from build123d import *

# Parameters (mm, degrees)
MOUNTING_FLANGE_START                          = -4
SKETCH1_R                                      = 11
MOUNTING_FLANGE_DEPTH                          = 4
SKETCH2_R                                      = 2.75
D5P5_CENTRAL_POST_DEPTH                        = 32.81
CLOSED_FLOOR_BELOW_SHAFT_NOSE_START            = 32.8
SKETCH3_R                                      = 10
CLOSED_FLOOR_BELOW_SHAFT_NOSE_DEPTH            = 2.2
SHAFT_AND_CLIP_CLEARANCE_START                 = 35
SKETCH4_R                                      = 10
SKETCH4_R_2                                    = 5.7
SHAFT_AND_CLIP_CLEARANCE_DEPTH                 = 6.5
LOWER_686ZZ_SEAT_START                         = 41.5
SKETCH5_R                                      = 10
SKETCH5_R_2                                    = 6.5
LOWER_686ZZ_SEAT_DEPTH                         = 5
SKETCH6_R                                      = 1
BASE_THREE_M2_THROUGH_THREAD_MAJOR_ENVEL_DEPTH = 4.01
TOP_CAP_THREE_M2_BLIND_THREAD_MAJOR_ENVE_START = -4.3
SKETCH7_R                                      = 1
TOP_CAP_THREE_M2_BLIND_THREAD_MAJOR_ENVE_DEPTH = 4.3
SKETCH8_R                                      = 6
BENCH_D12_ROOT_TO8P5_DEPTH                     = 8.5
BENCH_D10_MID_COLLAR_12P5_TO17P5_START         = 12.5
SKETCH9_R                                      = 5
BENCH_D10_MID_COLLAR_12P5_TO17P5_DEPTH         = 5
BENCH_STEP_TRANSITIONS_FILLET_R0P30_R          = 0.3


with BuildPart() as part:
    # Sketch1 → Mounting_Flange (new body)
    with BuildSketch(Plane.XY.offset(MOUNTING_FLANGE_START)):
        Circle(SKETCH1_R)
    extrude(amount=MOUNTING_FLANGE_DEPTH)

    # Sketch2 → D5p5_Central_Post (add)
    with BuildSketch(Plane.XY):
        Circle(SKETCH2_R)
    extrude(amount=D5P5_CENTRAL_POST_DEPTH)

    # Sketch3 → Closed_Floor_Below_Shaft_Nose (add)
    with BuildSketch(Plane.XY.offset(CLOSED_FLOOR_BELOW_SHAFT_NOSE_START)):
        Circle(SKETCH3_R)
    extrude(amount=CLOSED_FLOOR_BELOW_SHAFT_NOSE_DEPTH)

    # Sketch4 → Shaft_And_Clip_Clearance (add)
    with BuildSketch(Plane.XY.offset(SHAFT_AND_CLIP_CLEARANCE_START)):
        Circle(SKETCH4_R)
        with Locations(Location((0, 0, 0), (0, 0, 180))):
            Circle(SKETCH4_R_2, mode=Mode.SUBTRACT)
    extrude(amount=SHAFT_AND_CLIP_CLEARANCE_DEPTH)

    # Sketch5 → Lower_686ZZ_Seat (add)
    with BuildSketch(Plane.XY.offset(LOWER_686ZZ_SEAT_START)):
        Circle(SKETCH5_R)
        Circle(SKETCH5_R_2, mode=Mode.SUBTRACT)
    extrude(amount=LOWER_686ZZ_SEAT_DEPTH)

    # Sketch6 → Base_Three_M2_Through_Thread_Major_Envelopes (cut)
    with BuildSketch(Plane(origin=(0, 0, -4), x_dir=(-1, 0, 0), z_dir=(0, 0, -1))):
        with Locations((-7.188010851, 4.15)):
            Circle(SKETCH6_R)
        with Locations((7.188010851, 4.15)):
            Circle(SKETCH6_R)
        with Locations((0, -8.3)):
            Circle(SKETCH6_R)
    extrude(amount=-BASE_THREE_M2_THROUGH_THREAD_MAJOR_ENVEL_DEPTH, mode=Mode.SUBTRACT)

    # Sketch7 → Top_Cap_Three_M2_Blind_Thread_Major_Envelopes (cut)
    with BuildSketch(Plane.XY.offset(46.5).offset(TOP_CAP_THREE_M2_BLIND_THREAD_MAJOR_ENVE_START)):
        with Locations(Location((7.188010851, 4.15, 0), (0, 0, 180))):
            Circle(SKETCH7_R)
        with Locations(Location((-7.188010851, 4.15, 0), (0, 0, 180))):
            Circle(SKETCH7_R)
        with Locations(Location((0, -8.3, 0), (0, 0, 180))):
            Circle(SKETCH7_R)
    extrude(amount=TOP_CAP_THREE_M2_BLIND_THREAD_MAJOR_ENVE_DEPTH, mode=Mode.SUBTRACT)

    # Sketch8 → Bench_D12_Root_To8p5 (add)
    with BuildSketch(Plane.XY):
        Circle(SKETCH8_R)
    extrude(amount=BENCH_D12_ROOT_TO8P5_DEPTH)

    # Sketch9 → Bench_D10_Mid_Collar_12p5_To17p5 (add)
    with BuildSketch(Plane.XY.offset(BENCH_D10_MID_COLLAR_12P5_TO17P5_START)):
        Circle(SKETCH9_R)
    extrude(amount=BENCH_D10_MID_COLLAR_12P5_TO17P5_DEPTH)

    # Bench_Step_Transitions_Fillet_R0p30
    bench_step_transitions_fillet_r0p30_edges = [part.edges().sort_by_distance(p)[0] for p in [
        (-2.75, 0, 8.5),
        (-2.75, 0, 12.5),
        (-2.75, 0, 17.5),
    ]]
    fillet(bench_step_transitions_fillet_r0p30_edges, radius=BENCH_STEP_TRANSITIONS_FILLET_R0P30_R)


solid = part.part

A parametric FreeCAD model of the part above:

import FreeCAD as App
import Part
import Sketcher
from FreeCAD import Vector


def edges_at(feature, points):
    """Names of the edges that pass closest to the given points."""
    edges = feature.Shape.Edges
    near = lambda p: min(range(len(edges)), key=lambda i: edges[i].distToShape(Part.Vertex(*p))[0])
    return sorted({f"Edge{near(p) + 1}" for p in points})

doc = App.newDocument("Part")
body = doc.addObject("PartDesign::Body", "Body")

# Sketch on XY plane
sketch1 = doc.addObject("Sketcher::SketchObject", "Sketch")
body.addObject(sketch1)
sketch1.AttachmentSupport = (doc.XY_Plane, [""])
sketch1.MapMode = "FlatFace"
sketch1.AttachmentOffset = App.Placement(Vector(0, 0, -4), App.Rotation())
sketch1.addGeometry(Part.Circle(Vector(0, 0, 0), Vector(0, 0, 1), 11), False)
sketch1.addConstraint([
    Sketcher.Constraint("Coincident", 0, 3, -1, 1),
    Sketcher.Constraint("Diameter", 0, 22.0),
])
pad1 = doc.addObject("PartDesign::Pad", "Pad")
body.addObject(pad1)
pad1.Profile = sketch1
pad1.Length = 4

# Sketch on XY plane
sketch2 = doc.addObject("Sketcher::SketchObject", "Sketch001")
body.addObject(sketch2)
sketch2.AttachmentSupport = (doc.XY_Plane, [""])
sketch2.MapMode = "FlatFace"
sketch2.addGeometry(Part.Circle(Vector(0, 0, 0), Vector(0, 0, 1), 2.8), False)
sketch2.addConstraint([
    Sketcher.Constraint("Coincident", 0, 3, -1, 1),
    Sketcher.Constraint("Diameter", 0, 5.5),
])
pad2 = doc.addObject("PartDesign::Pad", "Pad001")
body.addObject(pad2)
pad2.Profile = sketch2
pad2.Length = 32.81

# Sketch on XY plane
sketch3 = doc.addObject("Sketcher::SketchObject", "Sketch002")
body.addObject(sketch3)
sketch3.AttachmentSupport = (doc.XY_Plane, [""])
sketch3.MapMode = "FlatFace"
sketch3.AttachmentOffset = App.Placement(Vector(0, 0, 32.8), App.Rotation())
sketch3.addGeometry(Part.Circle(Vector(0, 0, 0), Vector(0, 0, 1), 10), False)
sketch3.addConstraint([
    Sketcher.Constraint("Coincident", 0, 3, -1, 1),
    Sketcher.Constraint("Diameter", 0, 20.0),
])
pad3 = doc.addObject("PartDesign::Pad", "Pad002")
body.addObject(pad3)
pad3.Profile = sketch3
pad3.Length = 2.2

# Sketch on XY plane
sketch4 = doc.addObject("Sketcher::SketchObject", "Sketch003")
body.addObject(sketch4)
sketch4.AttachmentSupport = (doc.XY_Plane, [""])
sketch4.MapMode = "FlatFace"
sketch4.AttachmentOffset = App.Placement(Vector(0, 0, 35), App.Rotation())
sketch4.addGeometry([
    Part.Circle(Vector(0, 0, 0), Vector(0, 0, 1), 10),
    Part.Circle(Vector(0, 0, 0), Vector(0, 0, 1), 6),
], False)
sketch4.addConstraint([
    Sketcher.Constraint("Coincident", 0, 3, -1, 1),
    Sketcher.Constraint("Coincident", 1, 3, -1, 1),
    Sketcher.Constraint("Diameter", 0, 20.0),
    Sketcher.Constraint("Diameter", 1, 11.4),
])
pad4 = doc.addObject("PartDesign::Pad", "Pad003")
body.addObject(pad4)
pad4.Profile = sketch4
pad4.Length = 6.5

# Sketch on XY plane
sketch5 = doc.addObject("Sketcher::SketchObject", "Sketch004")
body.addObject(sketch5)
sketch5.AttachmentSupport = (doc.XY_Plane, [""])
sketch5.MapMode = "FlatFace"
sketch5.AttachmentOffset = App.Placement(Vector(0, 0, 41.5), App.Rotation())
sketch5.addGeometry([
    Part.Circle(Vector(0, 0, 0), Vector(0, 0, 1), 10),
    Part.Circle(Vector(0, 0, 0), Vector(0, 0, 1), 6),
], False)
sketch5.addConstraint([
    Sketcher.Constraint("Coincident", 0, 3, -1, 1),
    Sketcher.Constraint("Coincident", 1, 3, -1, 1),
    Sketcher.Constraint("Diameter", 0, 20.0),
    Sketcher.Constraint("Diameter", 1, 13.0),
])
pad5 = doc.addObject("PartDesign::Pad", "Pad004")
body.addObject(pad5)
pad5.Profile = sketch5
pad5.Length = 5

# Sketch on XY plane
sketch6 = doc.addObject("Sketcher::SketchObject", "Sketch005")
body.addObject(sketch6)
sketch6.AttachmentSupport = (doc.XY_Plane, [""])
sketch6.MapMode = "FlatFace"
sketch6.AttachmentOffset = App.Placement(Vector(0, 0, -4), App.Rotation())
sketch6.addGeometry([
    Part.Circle(Vector(7.2, 4.2, 0), Vector(0, 0, 1), 1),
    Part.Circle(Vector(-7.2, 4.2, 0), Vector(0, 0, 1), 1),
    Part.Circle(Vector(0, -8.3, 0), Vector(0, 0, 1), 1),
], False)
sketch6.addConstraint([
    Sketcher.Constraint("Equal", 0, 1),
    Sketcher.Constraint("Equal", 1, 2),
    Sketcher.Constraint("Symmetric", 0, 3, 1, 3, -2),
    Sketcher.Constraint("PointOnObject", 2, 3, -2),
    Sketcher.Constraint("Diameter", 0, 2.0),
    Sketcher.Constraint("DistanceY", 2, 3, -1, 1, 8.3),
    Sketcher.Constraint("DistanceY", -1, 1, 0, 3, 4.15),
    Sketcher.Constraint("DistanceX", -1, 1, 0, 3, 7.188011),
])
pocket1 = doc.addObject("PartDesign::Pocket", "Pocket")
body.addObject(pocket1)
pocket1.Profile = sketch6
pocket1.Length = 4.01
pocket1.Reversed = True

# Sketch on XY plane
sketch7 = doc.addObject("Sketcher::SketchObject", "Sketch006")
body.addObject(sketch7)
sketch7.AttachmentSupport = (doc.XY_Plane, [""])
sketch7.MapMode = "FlatFace"
sketch7.AttachmentOffset = App.Placement(Vector(0, 0, 42.2), App.Rotation())
sketch7.addGeometry([
    Part.Circle(Vector(7.2, 4.2, 0), Vector(0, 0, 1), 1),
    Part.Circle(Vector(-7.2, 4.2, 0), Vector(0, 0, 1), 1),
    Part.Circle(Vector(0, -8.3, 0), Vector(0, 0, 1), 1),
], False)
sketch7.addConstraint([
    Sketcher.Constraint("Equal", 0, 1),
    Sketcher.Constraint("Equal", 1, 2),
    Sketcher.Constraint("Symmetric", 0, 3, 1, 3, -2),
    Sketcher.Constraint("PointOnObject", 2, 3, -2),
    Sketcher.Constraint("Diameter", 0, 2.0),
    Sketcher.Constraint("DistanceY", 2, 3, -1, 1, 8.3),
    Sketcher.Constraint("DistanceY", -1, 1, 0, 3, 4.15),
    Sketcher.Constraint("DistanceX", -1, 1, 0, 3, 7.188011),
])
pocket2 = doc.addObject("PartDesign::Pocket", "Pocket001")
body.addObject(pocket2)
pocket2.Profile = sketch7
pocket2.Length = 4.3
pocket2.Reversed = True

# Sketch on XY plane
sketch8 = doc.addObject("Sketcher::SketchObject", "Sketch007")
body.addObject(sketch8)
sketch8.AttachmentSupport = (doc.XY_Plane, [""])
sketch8.MapMode = "FlatFace"
sketch8.addGeometry(Part.Circle(Vector(0, 0, 0), Vector(0, 0, 1), 6), False)
sketch8.addConstraint([
    Sketcher.Constraint("Coincident", 0, 3, -1, 1),
    Sketcher.Constraint("Diameter", 0, 12.0),
])
pad6 = doc.addObject("PartDesign::Pad", "Pad005")
body.addObject(pad6)
pad6.Profile = sketch8
pad6.Length = 8.5

# Sketch on XY plane
sketch9 = doc.addObject("Sketcher::SketchObject", "Sketch008")
body.addObject(sketch9)
sketch9.AttachmentSupport = (doc.XY_Plane, [""])
sketch9.MapMode = "FlatFace"
sketch9.AttachmentOffset = App.Placement(Vector(0, 0, 12.5), App.Rotation())
sketch9.addGeometry(Part.Circle(Vector(0, 0, 0), Vector(0, 0, 1), 5), False)
sketch9.addConstraint([
    Sketcher.Constraint("Coincident", 0, 3, -1, 1),
    Sketcher.Constraint("Diameter", 0, 10.0),
])
pad7 = doc.addObject("PartDesign::Pad", "Pad006")
body.addObject(pad7)
pad7.Profile = sketch9
pad7.Length = 5
doc.recompute()

fillet = doc.addObject("PartDesign::Fillet", "Fillet")
body.addObject(fillet)
fillet.Base = (pad7, edges_at(pad7, [(-2.75, 0, 8.5), (-2.75, 0, 12.5), (-2.75, 0, 17.5)]))
fillet.Radius = 0.3

doc.recompute()
